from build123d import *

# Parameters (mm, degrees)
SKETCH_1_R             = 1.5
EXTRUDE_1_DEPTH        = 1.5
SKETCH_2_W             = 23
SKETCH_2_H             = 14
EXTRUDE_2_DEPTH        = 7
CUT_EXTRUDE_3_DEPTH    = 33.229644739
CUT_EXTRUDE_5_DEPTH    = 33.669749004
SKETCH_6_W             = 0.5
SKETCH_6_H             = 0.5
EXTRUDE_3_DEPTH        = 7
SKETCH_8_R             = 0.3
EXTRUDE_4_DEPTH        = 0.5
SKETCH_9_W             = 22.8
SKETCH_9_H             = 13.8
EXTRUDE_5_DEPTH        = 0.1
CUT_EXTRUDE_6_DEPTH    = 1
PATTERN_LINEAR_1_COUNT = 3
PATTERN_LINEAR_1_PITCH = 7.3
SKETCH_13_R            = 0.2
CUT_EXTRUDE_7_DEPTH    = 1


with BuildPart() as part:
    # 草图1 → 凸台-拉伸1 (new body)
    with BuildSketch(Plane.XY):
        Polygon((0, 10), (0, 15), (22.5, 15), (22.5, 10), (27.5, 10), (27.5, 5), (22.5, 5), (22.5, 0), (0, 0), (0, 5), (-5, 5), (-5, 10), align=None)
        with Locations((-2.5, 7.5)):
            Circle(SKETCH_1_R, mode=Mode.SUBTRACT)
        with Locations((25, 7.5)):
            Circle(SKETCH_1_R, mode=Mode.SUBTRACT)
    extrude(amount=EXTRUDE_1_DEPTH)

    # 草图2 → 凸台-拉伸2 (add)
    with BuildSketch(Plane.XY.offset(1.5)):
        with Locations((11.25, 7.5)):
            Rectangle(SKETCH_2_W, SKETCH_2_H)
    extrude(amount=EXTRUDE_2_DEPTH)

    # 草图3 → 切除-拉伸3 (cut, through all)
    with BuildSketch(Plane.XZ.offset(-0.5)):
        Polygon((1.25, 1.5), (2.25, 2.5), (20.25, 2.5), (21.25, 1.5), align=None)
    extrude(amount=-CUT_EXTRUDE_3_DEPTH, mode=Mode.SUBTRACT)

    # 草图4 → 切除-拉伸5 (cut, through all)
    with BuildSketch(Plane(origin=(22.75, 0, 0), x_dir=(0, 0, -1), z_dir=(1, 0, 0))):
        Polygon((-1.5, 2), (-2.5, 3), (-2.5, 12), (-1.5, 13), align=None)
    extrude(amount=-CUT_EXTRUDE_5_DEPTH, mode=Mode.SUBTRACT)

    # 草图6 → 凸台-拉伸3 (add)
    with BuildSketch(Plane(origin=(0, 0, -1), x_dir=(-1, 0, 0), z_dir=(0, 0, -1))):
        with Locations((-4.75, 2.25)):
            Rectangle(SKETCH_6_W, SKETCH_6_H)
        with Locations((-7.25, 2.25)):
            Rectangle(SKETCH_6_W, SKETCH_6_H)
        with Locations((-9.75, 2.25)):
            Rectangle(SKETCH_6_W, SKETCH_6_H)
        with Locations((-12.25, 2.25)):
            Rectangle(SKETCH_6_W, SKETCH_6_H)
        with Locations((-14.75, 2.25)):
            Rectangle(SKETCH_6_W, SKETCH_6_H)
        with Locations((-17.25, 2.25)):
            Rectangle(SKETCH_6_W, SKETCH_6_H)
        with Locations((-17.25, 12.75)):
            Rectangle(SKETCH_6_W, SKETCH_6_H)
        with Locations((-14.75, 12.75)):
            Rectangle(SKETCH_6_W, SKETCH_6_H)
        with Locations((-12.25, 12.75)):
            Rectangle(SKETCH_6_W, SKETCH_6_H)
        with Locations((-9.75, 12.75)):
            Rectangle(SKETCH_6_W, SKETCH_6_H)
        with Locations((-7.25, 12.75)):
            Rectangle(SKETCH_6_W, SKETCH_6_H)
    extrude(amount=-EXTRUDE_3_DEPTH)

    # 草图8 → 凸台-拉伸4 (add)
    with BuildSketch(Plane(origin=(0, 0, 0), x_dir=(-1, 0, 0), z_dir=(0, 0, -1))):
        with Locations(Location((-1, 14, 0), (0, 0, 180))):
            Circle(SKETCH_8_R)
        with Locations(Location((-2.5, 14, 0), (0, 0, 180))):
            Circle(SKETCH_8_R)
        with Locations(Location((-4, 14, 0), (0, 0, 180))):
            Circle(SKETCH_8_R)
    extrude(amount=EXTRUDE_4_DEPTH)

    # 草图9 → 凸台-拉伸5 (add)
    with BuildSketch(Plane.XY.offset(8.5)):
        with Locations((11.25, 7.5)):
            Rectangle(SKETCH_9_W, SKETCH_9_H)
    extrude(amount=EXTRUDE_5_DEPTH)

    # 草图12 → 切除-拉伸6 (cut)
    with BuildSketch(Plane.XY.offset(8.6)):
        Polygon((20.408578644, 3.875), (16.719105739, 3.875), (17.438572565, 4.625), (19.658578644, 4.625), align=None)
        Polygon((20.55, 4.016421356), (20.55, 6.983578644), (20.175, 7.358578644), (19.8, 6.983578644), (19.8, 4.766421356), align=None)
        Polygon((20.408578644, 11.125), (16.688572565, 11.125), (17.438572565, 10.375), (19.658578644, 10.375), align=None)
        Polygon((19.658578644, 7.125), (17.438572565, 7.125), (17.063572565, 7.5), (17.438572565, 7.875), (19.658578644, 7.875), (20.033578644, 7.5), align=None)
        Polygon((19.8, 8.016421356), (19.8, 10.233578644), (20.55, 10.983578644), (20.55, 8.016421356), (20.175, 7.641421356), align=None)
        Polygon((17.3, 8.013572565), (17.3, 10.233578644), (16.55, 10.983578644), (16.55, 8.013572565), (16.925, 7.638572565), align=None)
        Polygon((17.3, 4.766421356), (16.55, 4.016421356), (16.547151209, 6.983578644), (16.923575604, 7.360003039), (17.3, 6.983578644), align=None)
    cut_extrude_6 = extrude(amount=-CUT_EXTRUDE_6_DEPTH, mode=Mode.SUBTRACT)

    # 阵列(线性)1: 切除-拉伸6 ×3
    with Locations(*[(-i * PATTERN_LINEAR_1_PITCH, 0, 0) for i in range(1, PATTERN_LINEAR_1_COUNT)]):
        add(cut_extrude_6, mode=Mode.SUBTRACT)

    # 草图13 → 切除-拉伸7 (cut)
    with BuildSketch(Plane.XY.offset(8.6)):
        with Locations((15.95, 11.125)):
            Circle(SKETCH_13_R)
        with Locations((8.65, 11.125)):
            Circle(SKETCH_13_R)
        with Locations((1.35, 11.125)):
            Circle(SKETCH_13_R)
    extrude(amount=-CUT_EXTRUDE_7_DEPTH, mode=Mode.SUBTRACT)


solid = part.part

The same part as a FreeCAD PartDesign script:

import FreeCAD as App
import Part
import Sketcher
from FreeCAD import Vector
Q = App.Units.Quantity

doc = App.newDocument("Part")
params = doc.addObject("Spreadsheet::Sheet", "Params")
for row, (alias, value) in enumerate([
    ("sketch1_diameter", "3 mm"),
    ("sketch1_width", "5 mm"),
    ("sketch1_width2", "22.5 mm"),
    ("pad1_length", "1.5 mm"),
    ("sketch2_width", "23 mm"),
    ("sketch2_height", "14 mm"),
    ("pad2_length", "7 mm"),
    ("sketch3_width", "20 mm"),
    ("sketch3_width2", "18 mm"),
    ("sketch4_width", "11 mm"),
    ("sketch4_width2", "9 mm"),
    ("sketch5_width", "0.5 mm"),
    ("pad3_length", "7 mm"),
    ("sketch6_diameter", "0.6 mm"),
    ("pad4_length", "0.5 mm"),
    ("sketch7_width", "22.8 mm"),
    ("sketch7_height", "13.8 mm"),
    ("pad5_length", "0.1 mm"),
    ("pocket3_length", "1 mm"),
    ("linearpattern_pitch", "7.3 mm"),
    ("sketch9_diameter", "0.4 mm"),
    ("pocket4_length", "1 mm"),
], start=1):
    params.set(f"A{row}", alias)
    params.set(f"B{row}", "=" + value)
    params.setAlias(f"B{row}", alias)

body = doc.addObject("PartDesign::Body", "Body")

sketch1 = body.newObject("Sketcher::SketchObject", "Sketch")
sketch1.AttachmentSupport = (doc.getObject("XY_Plane"), [""])
sketch1.MapMode = "FlatFace"
sketch1.addGeometry([
    Part.LineSegment(Vector(0, 15, 0), Vector(0, 10, 0)),
    Part.LineSegment(Vector(0, 10, 0), Vector(-5, 10, 0)),
    Part.LineSegment(Vector(-5, 10, 0), Vector(-5, 5, 0)),
    Part.LineSegment(Vector(-5, 5, 0), Vector(0, 5, 0)),
    Part.LineSegment(Vector(0, 5, 0), Vector(0, 0, 0)),
    Part.LineSegment(Vector(0, 0, 0), Vector(22.5, 0, 0)),
    Part.LineSegment(Vector(22.5, 0, 0), Vector(22.5, 5, 0)),
    Part.LineSegment(Vector(22.5, 5, 0), Vector(27.5, 5, 0)),
    Part.LineSegment(Vector(27.5, 5, 0), Vector(27.5, 10, 0)),
    Part.LineSegment(Vector(27.5, 10, 0), Vector(22.5, 10, 0)),
    Part.LineSegment(Vector(22.5, 10, 0), Vector(22.5, 15, 0)),
    Part.LineSegment(Vector(22.5, 15, 0), Vector(0, 15, 0)),
    Part.Circle(Vector(25, 7.5, 0), Vector(0, 0, 1), 1.5),
    Part.Circle(Vector(-2.5, 7.5, 0), Vector(0, 0, 1), 1.5),
], False)
sketch1.addConstraint([
    Sketcher.Constraint("Coincident", 0, 2, 1, 1),
    Sketcher.Constraint("Coincident", 1, 2, 2, 1),
    Sketcher.Constraint("Coincident", 2, 2, 3, 1),
    Sketcher.Constraint("Coincident", 3, 2, 4, 1),
    Sketcher.Constraint("Coincident", 4, 2, 5, 1),
    Sketcher.Constraint("Coincident", 5, 2, 6, 1),
    Sketcher.Constraint("Coincident", 6, 2, 7, 1),
    Sketcher.Constraint("Coincident", 7, 2, 8, 1),
    Sketcher.Constraint("Coincident", 8, 2, 9, 1),
    Sketcher.Constraint("Coincident", 9, 2, 10, 1),
    Sketcher.Constraint("Coincident", 10, 2, 11, 1),
    Sketcher.Constraint("Coincident", 11, 2, 0, 1),
    Sketcher.Constraint("Vertical", 0),
    Sketcher.Constraint("Horizontal", 1),
    Sketcher.Constraint("Vertical", 2),
    Sketcher.Constraint("Horizontal", 3),
    Sketcher.Constraint("Vertical", 4),
    Sketcher.Constraint("Horizontal", 5),
    Sketcher.Constraint("Vertical", 6),
    Sketcher.Constraint("Horizontal", 7),
    Sketcher.Constraint("Vertical", 8),
    Sketcher.Constraint("Horizontal", 9),
    Sketcher.Constraint("Vertical", 10),
    Sketcher.Constraint("Horizontal", 11),
    Sketcher.Constraint("Coincident", 4, 2, -1, 1),
    Sketcher.Constraint("Equal", 12, 13),
    Sketcher.Constraint("PointOnObject", 0, 2, -2),
    Sketcher.Constraint("Horizontal", 12, 3, 13, 3),
    Sketcher.Constraint("Horizontal", 3, 2, 6, 2),
    Sketcher.Constraint("Horizontal", 1, 2, 8, 2),
    Sketcher.Constraint("Vertical", 6, 2, 9, 2),
    Sketcher.Constraint("Equal", 3, 7),
    Sketcher.Constraint("Equal", 9, 0),
    Sketcher.Constraint("Equal", 0, 2),
    Sketcher.Constraint("Equal", 2, 4),
    Sketcher.Constraint("Diameter", 12, Q("3 mm")),
    Sketcher.Constraint("DistanceX", 1, 2, 1, 1, Q("5 mm")),
    Sketcher.Constraint("DistanceX", 5, 1, 5, 2, Q("22.5 mm")),
    Sketcher.Constraint("DistanceX", -1, 1, 12, 3, Q("25 mm")),
    Sketcher.Constraint("DistanceX", 13, 3, 5, 2, Q("25 mm")),
    Sketcher.Constraint("DistanceY", -1, 1, 12, 3, Q("7.5 mm")),
])
sketch1.setExpression("Constraints[35]", "Params.sketch1_diameter")
sketch1.setExpression("Constraints[36]", "Params.sketch1_width")
sketch1.setExpression("Constraints[37]", "Params.sketch1_width2")
pad1 = body.newObject("PartDesign::Pad", "Pad")
pad1.Profile = sketch1
pad1.setExpression("Length", "Params.pad1_length")

sketch2 = body.newObject("Sketcher::SketchObject", "Sketch001")
sketch2.AttachmentSupport = (doc.getObject("XY_Plane"), [""])
sketch2.MapMode = "FlatFace"
sketch2.AttachmentOffset = App.Placement(Vector(0, 0, 1.5), App.Rotation())
sketch2.addGeometry([
    Part.LineSegment(Vector(0, 14, 0), Vector(0, 0, 0)),
    Part.LineSegment(Vector(0, 0, 0), Vector(23, 0, 0)),
    Part.LineSegment(Vector(23, 0, 0), Vector(23, 14, 0)),
    Part.LineSegment(Vector(23, 14, 0), Vector(0, 14, 0)),
], False)
sketch2.addConstraint([
    Sketcher.Constraint("Coincident", 0, 2, 1, 1),
    Sketcher.Constraint("Coincident", 1, 2, 2, 1),
    Sketcher.Constraint("Coincident", 2, 2, 3, 1),
    Sketcher.Constraint("Coincident", 3, 2, 0, 1),
    Sketcher.Constraint("Vertical", 0),
    Sketcher.Constraint("Horizontal", 1),
    Sketcher.Constraint("Vertical", 2),
    Sketcher.Constraint("Horizontal", 3),
    Sketcher.Constraint("DistanceX", 1, 1, 1, 2, Q("23 mm")),
    Sketcher.Constraint("DistanceY", 0, 2, 0, 1, Q("14 mm")),
    Sketcher.Constraint("DistanceY", -1, 1, 0, 2, Q("0.5 mm")),
    Sketcher.Constraint("DistanceX", 0, 2, -1, 1, Q("0.25 mm")),
])
sketch2.setExpression("Constraints[8]", "Params.sketch2_width")
sketch2.setExpression("Constraints[9]", "Params.sketch2_height")
pad2 = body.newObject("PartDesign::Pad", "Pad001")
pad2.Profile = sketch2
pad2.setExpression("Length", "Params.pad2_length")

sketch3 = body.newObject("Sketcher::SketchObject", "Sketch002")
sketch3.AttachmentSupport = (doc.getObject("XZ_Plane"), [""])
sketch3.MapMode = "FlatFace"
sketch3.AttachmentOffset = App.Placement(Vector(0, 0, -0.5), App.Rotation())
sketch3.addGeometry([
    Part.LineSegment(Vector(2.2, 2.5, 0), Vector(1.2, 1.5, 0)),
    Part.LineSegment(Vector(1.2, 1.5, 0), Vector(21.2, 1.5, 0)),
    Part.LineSegment(Vector(21.2, 1.5, 0), Vector(20.2, 2.5, 0)),
    Part.LineSegment(Vector(20.2, 2.5, 0), Vector(2.2, 2.5, 0)),
], False)
sketch3.addConstraint([
    Sketcher.Constraint("Coincident", 0, 2, 1, 1),
    Sketcher.Constraint("Coincident", 1, 2, 2, 1),
    Sketcher.Constraint("Coincident", 2, 2, 3, 1),
    Sketcher.Constraint("Coincident", 3, 2, 0, 1),
    Sketcher.Constraint("Horizontal", 1),
    Sketcher.Constraint("Horizontal", 3),
    Sketcher.Constraint("Perpendicular", 0, 2),
    Sketcher.Constraint("Equal", 0, 2),
    Sketcher.Constraint("DistanceX", 1, 1, 1, 2, Q("20 mm")),
    Sketcher.Constraint("DistanceX", 3, 2, 3, 1, Q("18 mm")),
    Sketcher.Constraint("DistanceY", -1, 1, 0, 2, Q("1.5 mm")),
    Sketcher.Constraint("DistanceX", -1, 1, 0, 2, Q("1.25 mm")),
])
sketch3.setExpression("Constraints[8]", "Params.sketch3_width")
sketch3.setExpression("Constraints[9]", "Params.sketch3_width2")
pocket1 = body.newObject("PartDesign::Pocket", "Pocket")
pocket1.Profile = sketch3
pocket1.Type = "ThroughAll"

sketch4 = body.newObject("Sketcher::SketchObject", "Sketch003")
sketch4.AttachmentSupport = (doc.getObject("YZ_Plane"), [""])
sketch4.MapMode = "FlatFace"
sketch4.AttachmentOffset = App.Placement(Vector(0, 0, 22.75), App.Rotation())
sketch4.addGeometry([
    Part.LineSegment(Vector(3, 2.5, 0), Vector(2, 1.5, 0)),
    Part.LineSegment(Vector(2, 1.5, 0), Vector(13, 1.5, 0)),
    Part.LineSegment(Vector(13, 1.5, 0), Vector(12, 2.5, 0)),
    Part.LineSegment(Vector(12, 2.5, 0), Vector(3, 2.5, 0)),
], False)
sketch4.addConstraint([
    Sketcher.Constraint("Coincident", 0, 2, 1, 1),
    Sketcher.Constraint("Coincident", 1, 2, 2, 1),
    Sketcher.Constraint("Coincident", 2, 2, 3, 1),
    Sketcher.Constraint("Coincident", 3, 2, 0, 1),
    Sketcher.Constraint("Horizontal", 1),
    Sketcher.Constraint("Horizontal", 3),
    Sketcher.Constraint("Perpendicular", 0, 2),
    Sketcher.Constraint("Equal", 0, 2),
    Sketcher.Constraint("DistanceX", 1, 1, 1, 2, Q("11 mm")),
    Sketcher.Constraint("DistanceX", 3, 2, 3, 1, Q("9 mm")),
    Sketcher.Constraint("DistanceX", -1, 1, 0, 2, Q("2 mm")),
    Sketcher.Constraint("DistanceY", -1, 1, 0, 2, Q("1.5 mm")),
])
sketch4.setExpression("Constraints[8]", "Params.sketch4_width")
sketch4.setExpression("Constraints[9]", "Params.sketch4_width2")
pocket2 = body.newObject("PartDesign::Pocket", "Pocket001")
pocket2.Profile = sketch4
pocket2.Type = "ThroughAll"

sketch5 = body.newObject("Sketcher::SketchObject", "Sketch004")
sketch5.AttachmentSupport = (doc.getObject("XY_Plane"), [""])
sketch5.MapMode = "FlatFace"
sketch5.AttachmentOffset = App.Placement(Vector(0, 0, -1), App.Rotation())
sketch5.addGeometry([
    Part.LineSegment(Vector(5, 2.5, 0), Vector(5, 2, 0)),
    Part.LineSegment(Vector(5, 2, 0), Vector(4.5, 2, 0)),
    Part.LineSegment(Vector(4.5, 2, 0), Vector(4.5, 2.5, 0)),
    Part.LineSegment(Vector(4.5, 2.5, 0), Vector(5, 2.5, 0)),
    Part.LineSegment(Vector(7.5, 2.5, 0), Vector(7.5, 2, 0)),
    Part.LineSegment(Vector(7.5, 2, 0), Vector(7, 2, 0)),
    Part.LineSegment(Vector(7, 2, 0), Vector(7, 2.5, 0)),
    Part.LineSegment(Vector(7, 2.5, 0), Vector(7.5, 2.5, 0)),
    Part.LineSegment(Vector(10, 2.5, 0), Vector(10, 2, 0)),
    Part.LineSegment(Vector(10, 2, 0), Vector(9.5, 2, 0)),
    Part.LineSegment(Vector(9.5, 2, 0), Vector(9.5, 2.5, 0)),
    Part.LineSegment(Vector(9.5, 2.5, 0), Vector(10, 2.5, 0)),
    Part.LineSegment(Vector(12.5, 2.5, 0), Vector(12.5, 2, 0)),
    Part.LineSegment(Vector(12.5, 2, 0), Vector(12, 2, 0)),
    Part.LineSegment(Vector(12, 2, 0), Vector(12, 2.5, 0)),
    Part.LineSegment(Vector(12, 2.5, 0), Vector(12.5, 2.5, 0)),
    Part.LineSegment(Vector(15, 2.5, 0), Vector(15, 2, 0)),
    Part.LineSegment(Vector(15, 2, 0), Vector(14.5, 2, 0)),
    Part.LineSegment(Vector(14.5, 2, 0), Vector(14.5, 2.5, 0)),
    Part.LineSegment(Vector(14.5, 2.5, 0), Vector(15, 2.5, 0)),
    Part.LineSegment(Vector(17.5, 2.5, 0), Vector(17.5, 2, 0)),
    Part.LineSegment(Vector(17.5, 2, 0), Vector(17, 2, 0)),
    Part.LineSegment(Vector(17, 2, 0), Vector(17, 2.5, 0)),
    Part.LineSegment(Vector(17, 2.5, 0), Vector(17.5, 2.5, 0)),
    Part.LineSegment(Vector(17.5, 13, 0), Vector(17.5, 12.5, 0)),
    Part.LineSegment(Vector(17.5, 12.5, 0), Vector(17, 12.5, 0)),
    Part.LineSegment(Vector(17, 12.5, 0), Vector(17, 13, 0)),
    Part.LineSegment(Vector(17, 13, 0), Vector(17.5, 13, 0)),
    Part.LineSegment(Vector(15, 13, 0), Vector(15, 12.5, 0)),
    Part.LineSegment(Vector(15, 12.5, 0), Vector(14.5, 12.5, 0)),
    Part.LineSegment(Vector(14.5, 12.5, 0), Vector(14.5, 13, 0)),
    Part.LineSegment(Vector(14.5, 13, 0), Vector(15, 13, 0)),
    Part.LineSegment(Vector(12.5, 13, 0), Vector(12.5, 12.5, 0)),
    Part.LineSegment(Vector(12.5, 12.5, 0), Vector(12, 12.5, 0)),
    Part.LineSegment(Vector(12, 12.5, 0), Vector(12, 13, 0)),
    Part.LineSegment(Vector(12, 13, 0), Vector(12.5, 13, 0)),
    Part.LineSegment(Vector(10, 13, 0), Vector(10, 12.5, 0)),
    Part.LineSegment(Vector(10, 12.5, 0), Vector(9.5, 12.5, 0)),
    Part.LineSegment(Vector(9.5, 12.5, 0), Vector(9.5, 13, 0)),
    Part.LineSegment(Vector(9.5, 13, 0), Vector(10, 13, 0)),
    Part.LineSegment(Vector(7.5, 13, 0), Vector(7.5, 12.5, 0)),
    Part.LineSegment(Vector(7.5, 12.5, 0), Vector(7, 12.5, 0)),
    Part.LineSegment(Vector(7, 12.5, 0), Vector(7, 13, 0)),
    Part.LineSegment(Vector(7, 13, 0), Vector(7.5, 13, 0)),
], False)
sketch5.addConstraint([
    Sketcher.Constraint("Coincident", 0, 2, 1, 1),
    Sketcher.Constraint("Coincident", 1, 2, 2, 1),
    Sketcher.Constraint("Coincident", 2, 2, 3, 1),
    Sketcher.Constraint("Coincident", 3, 2, 0, 1),
    Sketcher.Constraint("Coincident", 4, 2, 5, 1),
    Sketcher.Constraint("Coincident", 5, 2, 6, 1),
    Sketcher.Constraint("Coincident", 6, 2, 7, 1),
    Sketcher.Constraint("Coincident", 7, 2, 4, 1),
    Sketcher.Constraint("Coincident", 8, 2, 9, 1),
    Sketcher.Constraint("Coincident", 9, 2, 10, 1),
    Sketcher.Constraint("Coincident", 10, 2, 11, 1),
    Sketcher.Constraint("Coincident", 11, 2, 8, 1),
    Sketcher.Constraint("Coincident", 12, 2, 13, 1),
    Sketcher.Constraint("Coincident", 13, 2, 14, 1),
    Sketcher.Constraint("Coincident", 14, 2, 15, 1),
    Sketcher.Constraint("Coincident", 15, 2, 12, 1),
    Sketcher.Constraint("Coincident", 16, 2, 17, 1),
    Sketcher.Constraint("Coincident", 17, 2, 18, 1),
    Sketcher.Constraint("Coincident", 18, 2, 19, 1),
    Sketcher.Constraint("Coincident", 19, 2, 16, 1),
    Sketcher.Constraint("Coincident", 20, 2, 21, 1),
    Sketcher.Constraint("Coincident", 21, 2, 22, 1),
    Sketcher.Constraint("Coincident", 22, 2, 23, 1),
    Sketcher.Constraint("Coincident", 23, 2, 20, 1),
    Sketcher.Constraint("Coincident", 24, 2, 25, 1),
    Sketcher.Constraint("Coincident", 25, 2, 26, 1),
    Sketcher.Constraint("Coincident", 26, 2, 27, 1),
    Sketcher.Constraint("Coincident", 27, 2, 24, 1),
    Sketcher.Constraint("Coincident", 28, 2, 29, 1),
    Sketcher.Constraint("Coincident", 29, 2, 30, 1),
    Sketcher.Constraint("Coincident", 30, 2, 31, 1),
    Sketcher.Constraint("Coincident", 31, 2, 28, 1),
    Sketcher.Constraint("Coincident", 32, 2, 33, 1),
    Sketcher.Constraint("Coincident", 33, 2, 34, 1),
    Sketcher.Constraint("Coincident", 34, 2, 35, 1),
    Sketcher.Constraint("Coincident", 35, 2, 32, 1),
    Sketcher.Constraint("Coincident", 36, 2, 37, 1),
    Sketcher.Constraint("Coincident", 37, 2, 38, 1),
    Sketcher.Constraint("Coincident", 38, 2, 39, 1),
    Sketcher.Constraint("Coincident", 39, 2, 36, 1),
    Sketcher.Constraint("Coincident", 40, 2, 41, 1),
    Sketcher.Constraint("Coincident", 41, 2, 42, 1),
    Sketcher.Constraint("Coincident", 42, 2, 43, 1),
    Sketcher.Constraint("Coincident", 43, 2, 40, 1),
    Sketcher.Constraint("Vertical", 0),
    Sketcher.Constraint("Horizontal", 1),
    Sketcher.Constraint("Vertical", 2),
    Sketcher.Constraint("Horizontal", 3),
    Sketcher.Constraint("Vertical", 4),
    Sketcher.Constraint("Horizontal", 5),
    Sketcher.Constraint("Vertical", 6),
    Sketcher.Constraint("Horizontal", 7),
    Sketcher.Constraint("Vertical", 8),
    Sketcher.Constraint("Horizontal", 9),
    Sketcher.Constraint("Vertical", 10),
    Sketcher.Constraint("Horizontal", 11),
    Sketcher.Constraint("Vertical", 12),
    Sketcher.Constraint("Horizontal", 13),
    Sketcher.Constraint("Vertical", 14),
    Sketcher.Constraint("Horizontal", 15),
    Sketcher.Constraint("Vertical", 16),
    Sketcher.Constraint("Horizontal", 17),
    Sketcher.Constraint("Vertical", 18),
    Sketcher.Constraint("Horizontal", 19),
    Sketcher.Constraint("Vertical", 20),
    Sketcher.Constraint("Horizontal", 21),
    Sketcher.Constraint("Vertical", 22),
    Sketcher.Constraint("Horizontal", 23),
    Sketcher.Constraint("Vertical", 24),
    Sketcher.Constraint("Horizontal", 25),
    Sketcher.Constraint("Vertical", 26),
    Sketcher.Constraint("Horizontal", 27),
    Sketcher.Constraint("Vertical", 28),
    Sketcher.Constraint("Horizontal", 29),
    Sketcher.Constraint("Vertical", 30),
    Sketcher.Constraint("Horizontal", 31),
    Sketcher.Constraint("Vertical", 32),
    Sketcher.Constraint("Horizontal", 33),
    Sketcher.Constraint("Vertical", 34),
    Sketcher.Constraint("Horizontal", 35),
    Sketcher.Constraint("Vertical", 36),
    Sketcher.Constraint("Horizontal", 37),
    Sketcher.Constraint("Vertical", 38),
    Sketcher.Constraint("Horizontal", 39),
    Sketcher.Constraint("Vertical", 40),
    Sketcher.Constraint("Horizontal", 41),
    Sketcher.Constraint("Vertical", 42),
    Sketcher.Constraint("Horizontal", 43),
    Sketcher.Constraint("Horizontal", 1, 2, 4, 2),
    Sketcher.Constraint("Horizontal", 3, 2, 6, 2),
    Sketcher.Constraint("Horizontal", 5, 2, 8, 2),
    Sketcher.Constraint("Horizontal", 7, 2, 10, 2),
    Sketcher.Constraint("Horizontal", 9, 2, 12, 2),
    Sketcher.Constraint("Horizontal", 11, 2, 14, 2),
    Sketcher.Constraint("Horizontal", 13, 2, 16, 2),
    Sketcher.Constraint("Horizontal", 15, 2, 18, 2),
    Sketcher.Constraint("Horizontal", 17, 2, 20, 2),
    Sketcher.Constraint("Horizontal", 19, 2, 22, 2),
    Sketcher.Constraint("Horizontal", 25, 2, 28, 2),
    Sketcher.Constraint("Horizontal", 27, 2, 30, 2),
    Sketcher.Constraint("Horizontal", 29, 2, 32, 2),
    Sketcher.Constraint("Horizontal", 31, 2, 34, 2),
    Sketcher.Constraint("Horizontal", 33, 2, 36, 2),
    Sketcher.Constraint("Horizontal", 35, 2, 38, 2),
    Sketcher.Constraint("Horizontal", 37, 2, 40, 2),
    Sketcher.Constraint("Horizontal", 39, 2, 42, 2),
    Sketcher.Constraint("Vertical", 23, 2, 24, 2),
    Sketcher.Constraint("Vertical", 22, 2, 25, 2),
    Sketcher.Constraint("Vertical", 19, 2, 28, 2),
    Sketcher.Constraint("Vertical", 18, 2, 29, 2),
    Sketcher.Constraint("Vertical", 15, 2, 32, 2),
    Sketcher.Constraint("Vertical", 14, 2, 33, 2),
    Sketcher.Constraint("Vertical", 11, 2, 36, 2),
    Sketcher.Constraint("Vertical", 10, 2, 37, 2),
    Sketcher.Constraint("Vertical", 7, 2, 40, 2),
    Sketcher.Constraint("Vertical", 6, 2, 41, 2),
    Sketcher.Constraint("Equal", 3, 5),
    Sketcher.Constraint("Equal", 7, 9),
    Sketcher.Constraint("Equal", 11, 13),
    Sketcher.Constraint("Equal", 15, 17),
    Sketcher.Constraint("Equal", 19, 21),
    Sketcher.Constraint("Equal", 43, 0),
    Sketcher.Constraint("Equal", 22, 24),
    Sketcher.Constraint("DistanceX", 1, 2, 1, 1, Q("0.5 mm")),
    Sketcher.Constraint("DistanceX", -1, 1, 0, 2, Q("5 mm")),
    Sketcher.Constraint("DistanceY", -1, 1, 0, 2, Q("2 mm")),
    Sketcher.Constraint("DistanceX", -1, 1, 5, 2, Q("7 mm")),
    Sketcher.Constraint("DistanceX", -1, 1, 8, 2, Q("10 mm")),
    Sketcher.Constraint("DistanceX", -1, 1, 13, 2, Q("12 mm")),
    Sketcher.Constraint("DistanceX", -1, 1, 16, 2, Q("15 mm")),
    Sketcher.Constraint("DistanceX", -1, 1, 21, 2, Q("17 mm")),
    Sketcher.Constraint("DistanceY", -1, 1, 26, 2, Q("13 mm")),
])
sketch5.setExpression("Constraints[123]", "Params.sketch5_width")
pad3 = body.newObject("PartDesign::Pad", "Pad002")
pad3.Profile = sketch5
pad3.setExpression("Length", "Params.pad3_length")

sketch6 = body.newObject("Sketcher::SketchObject", "Sketch005")
sketch6.AttachmentSupport = (doc.getObject("XY_Plane"), [""])
sketch6.MapMode = "FlatFace"
sketch6.addGeometry([
    Part.Circle(Vector(1, 14, 0), Vector(0, 0, 1), 0.3),
    Part.Circle(Vector(2.5, 14, 0), Vector(0, 0, 1), 0.3),
    Part.Circle(Vector(4, 14, 0), Vector(0, 0, 1), 0.3),
], False)
sketch6.addConstraint([
    Sketcher.Constraint("Equal", 0, 1),
    Sketcher.Constraint("Equal", 1, 2),
    Sketcher.Constraint("Horizontal", 0, 3, 1, 3),
    Sketcher.Constraint("Horizontal", 1, 3, 2, 3),
    Sketcher.Constraint("Diameter", 0, Q("0.6 mm")),
    Sketcher.Constraint("DistanceX", -1, 1, 0, 3, Q("1 mm")),
    Sketcher.Constraint("DistanceY", -1, 1, 0, 3, Q("14 mm")),
    Sketcher.Constraint("DistanceX", -1, 1, 2, 3, Q("4 mm")),
    Sketcher.Constraint("DistanceX", -1, 1, 1, 3, Q("2.5 mm")),
])
sketch6.setExpression("Constraints[4]", "Params.sketch6_diameter")
pad4 = body.newObject("PartDesign::Pad", "Pad003")
pad4.Profile = sketch6
pad4.setExpression("Length", "Params.pad4_length")
pad4.Reversed = True

sketch7 = body.newObject("Sketcher::SketchObject", "Sketch006")
sketch7.AttachmentSupport = (doc.getObject("XY_Plane"), [""])
sketch7.MapMode = "FlatFace"
sketch7.AttachmentOffset = App.Placement(Vector(0, 0, 8.5), App.Rotation())
sketch7.addGeometry([
    Part.LineSegment(Vector(0, 14, 0), Vector(0, 1, 0)),
    Part.LineSegment(Vector(0, 1, 0), Vector(23, 1, 0)),
    Part.LineSegment(Vector(23, 1, 0), Vector(23, 14, 0)),
    Part.LineSegment(Vector(23, 14, 0), Vector(0, 14, 0)),
], False)
sketch7.addConstraint([
    Sketcher.Constraint("Coincident", 0, 2, 1, 1),
    Sketcher.Constraint("Coincident", 1, 2, 2, 1),
    Sketcher.Constraint("Coincident", 2, 2, 3, 1),
    Sketcher.Constraint("Coincident", 3, 2, 0, 1),
    Sketcher.Constraint("Vertical", 0),
    Sketcher.Constraint("Horizontal", 1),
    Sketcher.Constraint("Vertical", 2),
    Sketcher.Constraint("Horizontal", 3),
    Sketcher.Constraint("DistanceX", 1, 1, 1, 2, Q("22.8 mm")),
    Sketcher.Constraint("DistanceY", 0, 2, 0, 1, Q("13.8 mm")),
    Sketcher.Constraint("DistanceY", -1, 1, 0, 2, Q("0.6 mm")),
    Sketcher.Constraint("DistanceX", 0, 2, -1, 1, Q("0.15 mm")),
])
sketch7.setExpression("Constraints[8]", "Params.sketch7_width")
sketch7.setExpression("Constraints[9]", "Params.sketch7_height")
pad5 = body.newObject("PartDesign::Pad", "Pad004")
pad5.Profile = sketch7
pad5.setExpression("Length", "Params.pad5_length")

sketch8 = body.newObject("Sketcher::SketchObject", "Sketch007")
sketch8.AttachmentSupport = (doc.getObject("XY_Plane"), [""])
sketch8.MapMode = "FlatFace"
sketch8.AttachmentOffset = App.Placement(Vector(0, 0, 8.6), App.Rotation())
sketch8.addGeometry([
    Part.LineSegment(Vector(16.7, 3.9, 0), Vector(20.4, 3.9, 0)),
    Part.LineSegment(Vector(20.4, 3.9, 0), Vector(19.7, 4.6, 0)),
    Part.LineSegment(Vector(19.7, 4.6, 0), Vector(17.4, 4.6, 0)),
    Part.LineSegment(Vector(17.4, 4.6, 0), Vector(16.7, 3.9, 0)),
    Part.LineSegment(Vector(20.6, 4, 0), Vector(20.6, 7, 0)),
    Part.LineSegment(Vector(20.6, 7, 0), Vector(20.2, 7.4, 0)),
    Part.LineSegment(Vector(20.2, 7.4, 0), Vector(19.8, 7, 0)),
    Part.LineSegment(Vector(19.8, 7, 0), Vector(19.8, 4.8, 0)),
    Part.LineSegment(Vector(19.8, 4.8, 0), Vector(20.6, 4, 0)),
    Part.LineSegment(Vector(20.4, 11.1, 0), Vector(16.7, 11.1, 0)),
    Part.LineSegment(Vector(16.7, 11.1, 0), Vector(17.4, 10.4, 0)),
    Part.LineSegment(Vector(17.4, 10.4, 0), Vector(19.7, 10.4, 0)),
    Part.LineSegment(Vector(19.7, 10.4, 0), Vector(20.4, 11.1, 0)),
    Part.LineSegment(Vector(17.4, 7.1, 0), Vector(19.7, 7.1, 0)),
    Part.LineSegment(Vector(19.7, 7.1, 0), Vector(20, 7.5, 0)),
    Part.LineSegment(Vector(20, 7.5, 0), Vector(19.7, 7.9, 0)),
    Part.LineSegment(Vector(19.7, 7.9, 0), Vector(17.4, 7.9, 0)),
    Part.LineSegment(Vector(17.4, 7.9, 0), Vector(17.1, 7.5, 0)),
    Part.LineSegment(Vector(17.1, 7.5, 0), Vector(17.4, 7.1, 0)),
    Part.LineSegment(Vector(19.8, 10.2, 0), Vector(19.8, 8, 0)),
    Part.LineSegment(Vector(19.8, 8, 0), Vector(20.2, 7.6, 0)),
    Part.LineSegment(Vector(20.2, 7.6, 0), Vector(20.6, 8, 0)),
    Part.LineSegment(Vector(20.6, 8, 0), Vector(20.6, 11, 0)),
    Part.LineSegment(Vector(20.6, 11, 0), Vector(19.8, 10.2, 0)),
    Part.LineSegment(Vector(17.3, 8, 0), Vector(17.3, 10.2, 0)),
    Part.LineSegment(Vector(17.3, 10.2, 0), Vector(16.6, 11, 0)),
    Part.LineSegment(Vector(16.6, 11, 0), Vector(16.6, 8, 0)),
    Part.LineSegment(Vector(16.6, 8, 0), Vector(16.9, 7.6, 0)),
    Part.LineSegment(Vector(16.9, 7.6, 0), Vector(17.3, 8, 0)),
    Part.LineSegment(Vector(16.6, 4, 0), Vector(17.3, 4.8, 0)),
    Part.LineSegment(Vector(17.3, 4.8, 0), Vector(17.3, 7, 0)),
    Part.LineSegment(Vector(17.3, 7, 0), Vector(16.9, 7.4, 0)),
    Part.LineSegment(Vector(16.9, 7.4, 0), Vector(16.5, 7, 0)),
    Part.LineSegment(Vector(16.5, 7, 0), Vector(16.6, 4, 0)),
], False)
sketch8.addConstraint([
    Sketcher.Constraint("Coincident", 0, 2, 1, 1),
    Sketcher.Constraint("Coincident", 1, 2, 2, 1),
    Sketcher.Constraint("Coincident", 2, 2, 3, 1),
    Sketcher.Constraint("Coincident", 3, 2, 0, 1),
    Sketcher.Constraint("Coincident", 4, 2, 5, 1),
    Sketcher.Constraint("Coincident", 5, 2, 6, 1),
    Sketcher.Constraint("Coincident", 6, 2, 7, 1),
    Sketcher.Constraint("Coincident", 7, 2, 8, 1),
    Sketcher.Constraint("Coincident", 8, 2, 4, 1),
    Sketcher.Constraint("Coincident", 9, 2, 10, 1),
    Sketcher.Constraint("Coincident", 10, 2, 11, 1),
    Sketcher.Constraint("Coincident", 11, 2, 12, 1),
    Sketcher.Constraint("Coincident", 12, 2, 9, 1),
    Sketcher.Constraint("Coincident", 13, 2, 14, 1),
    Sketcher.Constraint("Coincident", 14, 2, 15, 1),
    Sketcher.Constraint("Coincident", 15, 2, 16, 1),
    Sketcher.Constraint("Coincident", 16, 2, 17, 1),
    Sketcher.Constraint("Coincident", 17, 2, 18, 1),
    Sketcher.Constraint("Coincident", 18, 2, 13, 1),
    Sketcher.Constraint("Coincident", 19, 2, 20, 1),
    Sketcher.Constraint("Coincident", 20, 2, 21, 1),
    Sketcher.Constraint("Coincident", 21, 2, 22, 1),
    Sketcher.Constraint("Coincident", 22, 2, 23, 1),
    Sketcher.Constraint("Coincident", 23, 2, 19, 1),
    Sketcher.Constraint("Coincident", 24, 2, 25, 1),
    Sketcher.Constraint("Coincident", 25, 2, 26, 1),
    Sketcher.Constraint("Coincident", 26, 2, 27, 1),
    Sketcher.Constraint("Coincident", 27, 2, 28, 1),
    Sketcher.Constraint("Coincident", 28, 2, 24, 1),
    Sketcher.Constraint("Coincident", 29, 2, 30, 1),
    Sketcher.Constraint("Coincident", 30, 2, 31, 1),
    Sketcher.Constraint("Coincident", 31, 2, 32, 1),
    Sketcher.Constraint("Coincident", 32, 2, 33, 1),
    Sketcher.Constraint("Coincident", 33, 2, 29, 1),
    Sketcher.Constraint("Horizontal", 0),
    Sketcher.Constraint("Horizontal", 2),
    Sketcher.Constraint("Vertical", 4),
    Sketcher.Constraint("Vertical", 7),
    Sketcher.Constraint("Horizontal", 9),
    Sketcher.Constraint("Horizontal", 11),
    Sketcher.Constraint("Horizontal", 13),
    Sketcher.Constraint("Horizontal", 16),
    Sketcher.Constraint("Vertical", 19),
    Sketcher.Constraint("Vertical", 22),
    Sketcher.Constraint("Vertical", 24),
    Sketcher.Constraint("Vertical", 26),
    Sketcher.Constraint("Vertical", 30),
    Sketcher.Constraint("Parallel", 1, 5),
    Sketcher.Constraint("Perpendicular", 5, 6),
    Sketcher.Constraint("Perpendicular", 6, 8),
    Sketcher.Constraint("Parallel", 8, 10),
    Sketcher.Constraint("Perpendicular", 10, 12),
    Sketcher.Constraint("Parallel", 12, 14),
    Sketcher.Constraint("Perpendicular", 14, 15),
    Sketcher.Constraint("Perpendicular", 15, 17),
    Sketcher.Constraint("Perpendicular", 17, 18),
    Sketcher.Constraint("Parallel", 18, 20),
    Sketcher.Constraint("Perpendicular", 20, 21),
    Sketcher.Constraint("Parallel", 21, 23),
    Sketcher.Constraint("Perpendicular", 23, 25),
    Sketcher.Constraint("Parallel", 25, 27),
    Sketcher.Constraint("Perpendicular", 27, 28),
    Sketcher.Constraint("Parallel", 28, 29),
    Sketcher.Constraint("Perpendicular", 29, 31),
    Sketcher.Constraint("Perpendicular", 31, 32),
    Sketcher.Constraint("Horizontal", 4, 2, 6, 2),
    Sketcher.Constraint("Horizontal", 14, 2, 17, 2),
    Sketcher.Constraint("Horizontal", 19, 2, 21, 2),
    Sketcher.Constraint("Horizontal", 23, 2, 24, 2),
    Sketcher.Constraint("Horizontal", 22, 2, 25, 2),
    Sketcher.Constraint("Horizontal", 26, 2, 28, 2),
    Sketcher.Constraint("Horizontal", 7, 2, 29, 2),
    Sketcher.Constraint("Horizontal", 6, 2, 30, 2),
    Sketcher.Constraint("Horizontal", 30, 2, 32, 2),
    Sketcher.Constraint("Horizontal", 8, 2, 33, 2),
    Sketcher.Constraint("Vertical", 2, 2, 10, 2),
    Sketcher.Constraint("Vertical", 1, 2, 11, 2),
    Sketcher.Constraint("Vertical", 0, 2, 12, 2),
    Sketcher.Constraint("Vertical", 11, 2, 13, 2),
    Sketcher.Constraint("Vertical", 13, 2, 15, 2),
    Sketcher.Constraint("Vertical", 10, 2, 16, 2),
    Sketcher.Constraint("Vertical", 16, 2, 18, 2),
    Sketcher.Constraint("Vertical", 7, 2, 19, 2),
    Sketcher.Constraint("Vertical", 5, 2, 20, 2),
    Sketcher.Constraint("Vertical", 28, 2, 29, 2),
    Sketcher.Constraint("Equal", 7, 19),
    Sketcher.Constraint("Equal", 16, 24),
    Sketcher.Constraint("Equal", 1, 8),
    Sketcher.Constraint("Equal", 6, 14),
    Sketcher.Constraint("DistanceX", -1, 1, 6, 2, Q("19.8 mm")),
    Sketcher.Constraint("DistanceY", -1, 1, 14, 2, Q("7.5 mm")),
    Sketcher.Constraint("DistanceX", -1, 1, 24, 2, Q("17.3 mm")),
    Sketcher.Constraint("DistanceY", 2, 2, 9, 2, Q("6.5 mm")),
    Sketcher.Constraint("DistanceY", 1, 2, 13, 2, Q("2.5 mm")),
    Sketcher.Constraint("DistanceY", 16, 2, 10, 2, Q("2.5 mm")),
    Sketcher.Constraint("Distance", 33, Q("2.967159 mm")),
    Sketcher.Constraint("DistanceX", 0, 1, 0, 2, Q("3.689473 mm")),
    Sketcher.Constraint("DistanceX", 2, 2, 2, 1, Q("2.220006 mm")),
    Sketcher.Constraint("DistanceX", -1, 1, 0, 2, Q("20.408579 mm")),
    Sketcher.Constraint("DistanceY", -1, 1, 4, 2, Q("6.983579 mm")),
    Sketcher.Constraint("DistanceY", -1, 1, 19, 2, Q("8.016421 mm")),
    Sketcher.Constraint("DistanceX", -1, 1, 32, 2, Q("16.547151 mm")),
])
pocket3 = body.newObject("PartDesign::Pocket", "Pocket002")
pocket3.Profile = sketch8
pocket3.setExpression("Length", "Params.pocket3_length")
doc.recompute()

linearpattern = body.newObject("PartDesign::LinearPattern", "LinearPattern")
linearpattern.Originals = [pocket3]
linearpattern.Direction = (doc.getObject("X_Axis"), [""])
linearpattern.Mode = "offset"
linearpattern.setExpression("Offset", "Params.linearpattern_pitch")
linearpattern.Occurrences = 3
linearpattern.Reversed = True
body.Tip = linearpattern

sketch9 = body.newObject("Sketcher::SketchObject", "Sketch008")
sketch9.AttachmentSupport = (doc.getObject("XY_Plane"), [""])
sketch9.MapMode = "FlatFace"
sketch9.AttachmentOffset = App.Placement(Vector(0, 0, 8.6), App.Rotation())
sketch9.addGeometry([
    Part.Circle(Vector(15.95, 11.12, 0), Vector(0, 0, 1), 0.2),
    Part.Circle(Vector(8.65, 11.12, 0), Vector(0, 0, 1), 0.2),
    Part.Circle(Vector(1.35, 11.12, 0), Vector(0, 0, 1), 0.2),
], False)
sketch9.addConstraint([
    Sketcher.Constraint("Equal", 0, 1),
    Sketcher.Constraint("Equal", 1, 2),
    Sketcher.Constraint("Horizontal", 0, 3, 1, 3),
    Sketcher.Constraint("Horizontal", 1, 3, 2, 3),
    Sketcher.Constraint("Diameter", 0, Q("0.4 mm")),
    Sketcher.Constraint("DistanceX", 1, 3, 0, 3, Q("7.3 mm")),
    Sketcher.Constraint("DistanceX", 2, 3, 1, 3, Q("7.3 mm")),
    Sketcher.Constraint("DistanceX", -1, 1, 0, 3, Q("15.95 mm")),
    Sketcher.Constraint("DistanceY", -1, 1, 0, 3, Q("11.125 mm")),
])
sketch9.setExpression("Constraints[4]", "Params.sketch9_diameter")
pocket4 = body.newObject("PartDesign::Pocket", "Pocket003")
pocket4.Profile = sketch9
pocket4.setExpression("Length", "Params.pocket4_length")

doc.recompute()
